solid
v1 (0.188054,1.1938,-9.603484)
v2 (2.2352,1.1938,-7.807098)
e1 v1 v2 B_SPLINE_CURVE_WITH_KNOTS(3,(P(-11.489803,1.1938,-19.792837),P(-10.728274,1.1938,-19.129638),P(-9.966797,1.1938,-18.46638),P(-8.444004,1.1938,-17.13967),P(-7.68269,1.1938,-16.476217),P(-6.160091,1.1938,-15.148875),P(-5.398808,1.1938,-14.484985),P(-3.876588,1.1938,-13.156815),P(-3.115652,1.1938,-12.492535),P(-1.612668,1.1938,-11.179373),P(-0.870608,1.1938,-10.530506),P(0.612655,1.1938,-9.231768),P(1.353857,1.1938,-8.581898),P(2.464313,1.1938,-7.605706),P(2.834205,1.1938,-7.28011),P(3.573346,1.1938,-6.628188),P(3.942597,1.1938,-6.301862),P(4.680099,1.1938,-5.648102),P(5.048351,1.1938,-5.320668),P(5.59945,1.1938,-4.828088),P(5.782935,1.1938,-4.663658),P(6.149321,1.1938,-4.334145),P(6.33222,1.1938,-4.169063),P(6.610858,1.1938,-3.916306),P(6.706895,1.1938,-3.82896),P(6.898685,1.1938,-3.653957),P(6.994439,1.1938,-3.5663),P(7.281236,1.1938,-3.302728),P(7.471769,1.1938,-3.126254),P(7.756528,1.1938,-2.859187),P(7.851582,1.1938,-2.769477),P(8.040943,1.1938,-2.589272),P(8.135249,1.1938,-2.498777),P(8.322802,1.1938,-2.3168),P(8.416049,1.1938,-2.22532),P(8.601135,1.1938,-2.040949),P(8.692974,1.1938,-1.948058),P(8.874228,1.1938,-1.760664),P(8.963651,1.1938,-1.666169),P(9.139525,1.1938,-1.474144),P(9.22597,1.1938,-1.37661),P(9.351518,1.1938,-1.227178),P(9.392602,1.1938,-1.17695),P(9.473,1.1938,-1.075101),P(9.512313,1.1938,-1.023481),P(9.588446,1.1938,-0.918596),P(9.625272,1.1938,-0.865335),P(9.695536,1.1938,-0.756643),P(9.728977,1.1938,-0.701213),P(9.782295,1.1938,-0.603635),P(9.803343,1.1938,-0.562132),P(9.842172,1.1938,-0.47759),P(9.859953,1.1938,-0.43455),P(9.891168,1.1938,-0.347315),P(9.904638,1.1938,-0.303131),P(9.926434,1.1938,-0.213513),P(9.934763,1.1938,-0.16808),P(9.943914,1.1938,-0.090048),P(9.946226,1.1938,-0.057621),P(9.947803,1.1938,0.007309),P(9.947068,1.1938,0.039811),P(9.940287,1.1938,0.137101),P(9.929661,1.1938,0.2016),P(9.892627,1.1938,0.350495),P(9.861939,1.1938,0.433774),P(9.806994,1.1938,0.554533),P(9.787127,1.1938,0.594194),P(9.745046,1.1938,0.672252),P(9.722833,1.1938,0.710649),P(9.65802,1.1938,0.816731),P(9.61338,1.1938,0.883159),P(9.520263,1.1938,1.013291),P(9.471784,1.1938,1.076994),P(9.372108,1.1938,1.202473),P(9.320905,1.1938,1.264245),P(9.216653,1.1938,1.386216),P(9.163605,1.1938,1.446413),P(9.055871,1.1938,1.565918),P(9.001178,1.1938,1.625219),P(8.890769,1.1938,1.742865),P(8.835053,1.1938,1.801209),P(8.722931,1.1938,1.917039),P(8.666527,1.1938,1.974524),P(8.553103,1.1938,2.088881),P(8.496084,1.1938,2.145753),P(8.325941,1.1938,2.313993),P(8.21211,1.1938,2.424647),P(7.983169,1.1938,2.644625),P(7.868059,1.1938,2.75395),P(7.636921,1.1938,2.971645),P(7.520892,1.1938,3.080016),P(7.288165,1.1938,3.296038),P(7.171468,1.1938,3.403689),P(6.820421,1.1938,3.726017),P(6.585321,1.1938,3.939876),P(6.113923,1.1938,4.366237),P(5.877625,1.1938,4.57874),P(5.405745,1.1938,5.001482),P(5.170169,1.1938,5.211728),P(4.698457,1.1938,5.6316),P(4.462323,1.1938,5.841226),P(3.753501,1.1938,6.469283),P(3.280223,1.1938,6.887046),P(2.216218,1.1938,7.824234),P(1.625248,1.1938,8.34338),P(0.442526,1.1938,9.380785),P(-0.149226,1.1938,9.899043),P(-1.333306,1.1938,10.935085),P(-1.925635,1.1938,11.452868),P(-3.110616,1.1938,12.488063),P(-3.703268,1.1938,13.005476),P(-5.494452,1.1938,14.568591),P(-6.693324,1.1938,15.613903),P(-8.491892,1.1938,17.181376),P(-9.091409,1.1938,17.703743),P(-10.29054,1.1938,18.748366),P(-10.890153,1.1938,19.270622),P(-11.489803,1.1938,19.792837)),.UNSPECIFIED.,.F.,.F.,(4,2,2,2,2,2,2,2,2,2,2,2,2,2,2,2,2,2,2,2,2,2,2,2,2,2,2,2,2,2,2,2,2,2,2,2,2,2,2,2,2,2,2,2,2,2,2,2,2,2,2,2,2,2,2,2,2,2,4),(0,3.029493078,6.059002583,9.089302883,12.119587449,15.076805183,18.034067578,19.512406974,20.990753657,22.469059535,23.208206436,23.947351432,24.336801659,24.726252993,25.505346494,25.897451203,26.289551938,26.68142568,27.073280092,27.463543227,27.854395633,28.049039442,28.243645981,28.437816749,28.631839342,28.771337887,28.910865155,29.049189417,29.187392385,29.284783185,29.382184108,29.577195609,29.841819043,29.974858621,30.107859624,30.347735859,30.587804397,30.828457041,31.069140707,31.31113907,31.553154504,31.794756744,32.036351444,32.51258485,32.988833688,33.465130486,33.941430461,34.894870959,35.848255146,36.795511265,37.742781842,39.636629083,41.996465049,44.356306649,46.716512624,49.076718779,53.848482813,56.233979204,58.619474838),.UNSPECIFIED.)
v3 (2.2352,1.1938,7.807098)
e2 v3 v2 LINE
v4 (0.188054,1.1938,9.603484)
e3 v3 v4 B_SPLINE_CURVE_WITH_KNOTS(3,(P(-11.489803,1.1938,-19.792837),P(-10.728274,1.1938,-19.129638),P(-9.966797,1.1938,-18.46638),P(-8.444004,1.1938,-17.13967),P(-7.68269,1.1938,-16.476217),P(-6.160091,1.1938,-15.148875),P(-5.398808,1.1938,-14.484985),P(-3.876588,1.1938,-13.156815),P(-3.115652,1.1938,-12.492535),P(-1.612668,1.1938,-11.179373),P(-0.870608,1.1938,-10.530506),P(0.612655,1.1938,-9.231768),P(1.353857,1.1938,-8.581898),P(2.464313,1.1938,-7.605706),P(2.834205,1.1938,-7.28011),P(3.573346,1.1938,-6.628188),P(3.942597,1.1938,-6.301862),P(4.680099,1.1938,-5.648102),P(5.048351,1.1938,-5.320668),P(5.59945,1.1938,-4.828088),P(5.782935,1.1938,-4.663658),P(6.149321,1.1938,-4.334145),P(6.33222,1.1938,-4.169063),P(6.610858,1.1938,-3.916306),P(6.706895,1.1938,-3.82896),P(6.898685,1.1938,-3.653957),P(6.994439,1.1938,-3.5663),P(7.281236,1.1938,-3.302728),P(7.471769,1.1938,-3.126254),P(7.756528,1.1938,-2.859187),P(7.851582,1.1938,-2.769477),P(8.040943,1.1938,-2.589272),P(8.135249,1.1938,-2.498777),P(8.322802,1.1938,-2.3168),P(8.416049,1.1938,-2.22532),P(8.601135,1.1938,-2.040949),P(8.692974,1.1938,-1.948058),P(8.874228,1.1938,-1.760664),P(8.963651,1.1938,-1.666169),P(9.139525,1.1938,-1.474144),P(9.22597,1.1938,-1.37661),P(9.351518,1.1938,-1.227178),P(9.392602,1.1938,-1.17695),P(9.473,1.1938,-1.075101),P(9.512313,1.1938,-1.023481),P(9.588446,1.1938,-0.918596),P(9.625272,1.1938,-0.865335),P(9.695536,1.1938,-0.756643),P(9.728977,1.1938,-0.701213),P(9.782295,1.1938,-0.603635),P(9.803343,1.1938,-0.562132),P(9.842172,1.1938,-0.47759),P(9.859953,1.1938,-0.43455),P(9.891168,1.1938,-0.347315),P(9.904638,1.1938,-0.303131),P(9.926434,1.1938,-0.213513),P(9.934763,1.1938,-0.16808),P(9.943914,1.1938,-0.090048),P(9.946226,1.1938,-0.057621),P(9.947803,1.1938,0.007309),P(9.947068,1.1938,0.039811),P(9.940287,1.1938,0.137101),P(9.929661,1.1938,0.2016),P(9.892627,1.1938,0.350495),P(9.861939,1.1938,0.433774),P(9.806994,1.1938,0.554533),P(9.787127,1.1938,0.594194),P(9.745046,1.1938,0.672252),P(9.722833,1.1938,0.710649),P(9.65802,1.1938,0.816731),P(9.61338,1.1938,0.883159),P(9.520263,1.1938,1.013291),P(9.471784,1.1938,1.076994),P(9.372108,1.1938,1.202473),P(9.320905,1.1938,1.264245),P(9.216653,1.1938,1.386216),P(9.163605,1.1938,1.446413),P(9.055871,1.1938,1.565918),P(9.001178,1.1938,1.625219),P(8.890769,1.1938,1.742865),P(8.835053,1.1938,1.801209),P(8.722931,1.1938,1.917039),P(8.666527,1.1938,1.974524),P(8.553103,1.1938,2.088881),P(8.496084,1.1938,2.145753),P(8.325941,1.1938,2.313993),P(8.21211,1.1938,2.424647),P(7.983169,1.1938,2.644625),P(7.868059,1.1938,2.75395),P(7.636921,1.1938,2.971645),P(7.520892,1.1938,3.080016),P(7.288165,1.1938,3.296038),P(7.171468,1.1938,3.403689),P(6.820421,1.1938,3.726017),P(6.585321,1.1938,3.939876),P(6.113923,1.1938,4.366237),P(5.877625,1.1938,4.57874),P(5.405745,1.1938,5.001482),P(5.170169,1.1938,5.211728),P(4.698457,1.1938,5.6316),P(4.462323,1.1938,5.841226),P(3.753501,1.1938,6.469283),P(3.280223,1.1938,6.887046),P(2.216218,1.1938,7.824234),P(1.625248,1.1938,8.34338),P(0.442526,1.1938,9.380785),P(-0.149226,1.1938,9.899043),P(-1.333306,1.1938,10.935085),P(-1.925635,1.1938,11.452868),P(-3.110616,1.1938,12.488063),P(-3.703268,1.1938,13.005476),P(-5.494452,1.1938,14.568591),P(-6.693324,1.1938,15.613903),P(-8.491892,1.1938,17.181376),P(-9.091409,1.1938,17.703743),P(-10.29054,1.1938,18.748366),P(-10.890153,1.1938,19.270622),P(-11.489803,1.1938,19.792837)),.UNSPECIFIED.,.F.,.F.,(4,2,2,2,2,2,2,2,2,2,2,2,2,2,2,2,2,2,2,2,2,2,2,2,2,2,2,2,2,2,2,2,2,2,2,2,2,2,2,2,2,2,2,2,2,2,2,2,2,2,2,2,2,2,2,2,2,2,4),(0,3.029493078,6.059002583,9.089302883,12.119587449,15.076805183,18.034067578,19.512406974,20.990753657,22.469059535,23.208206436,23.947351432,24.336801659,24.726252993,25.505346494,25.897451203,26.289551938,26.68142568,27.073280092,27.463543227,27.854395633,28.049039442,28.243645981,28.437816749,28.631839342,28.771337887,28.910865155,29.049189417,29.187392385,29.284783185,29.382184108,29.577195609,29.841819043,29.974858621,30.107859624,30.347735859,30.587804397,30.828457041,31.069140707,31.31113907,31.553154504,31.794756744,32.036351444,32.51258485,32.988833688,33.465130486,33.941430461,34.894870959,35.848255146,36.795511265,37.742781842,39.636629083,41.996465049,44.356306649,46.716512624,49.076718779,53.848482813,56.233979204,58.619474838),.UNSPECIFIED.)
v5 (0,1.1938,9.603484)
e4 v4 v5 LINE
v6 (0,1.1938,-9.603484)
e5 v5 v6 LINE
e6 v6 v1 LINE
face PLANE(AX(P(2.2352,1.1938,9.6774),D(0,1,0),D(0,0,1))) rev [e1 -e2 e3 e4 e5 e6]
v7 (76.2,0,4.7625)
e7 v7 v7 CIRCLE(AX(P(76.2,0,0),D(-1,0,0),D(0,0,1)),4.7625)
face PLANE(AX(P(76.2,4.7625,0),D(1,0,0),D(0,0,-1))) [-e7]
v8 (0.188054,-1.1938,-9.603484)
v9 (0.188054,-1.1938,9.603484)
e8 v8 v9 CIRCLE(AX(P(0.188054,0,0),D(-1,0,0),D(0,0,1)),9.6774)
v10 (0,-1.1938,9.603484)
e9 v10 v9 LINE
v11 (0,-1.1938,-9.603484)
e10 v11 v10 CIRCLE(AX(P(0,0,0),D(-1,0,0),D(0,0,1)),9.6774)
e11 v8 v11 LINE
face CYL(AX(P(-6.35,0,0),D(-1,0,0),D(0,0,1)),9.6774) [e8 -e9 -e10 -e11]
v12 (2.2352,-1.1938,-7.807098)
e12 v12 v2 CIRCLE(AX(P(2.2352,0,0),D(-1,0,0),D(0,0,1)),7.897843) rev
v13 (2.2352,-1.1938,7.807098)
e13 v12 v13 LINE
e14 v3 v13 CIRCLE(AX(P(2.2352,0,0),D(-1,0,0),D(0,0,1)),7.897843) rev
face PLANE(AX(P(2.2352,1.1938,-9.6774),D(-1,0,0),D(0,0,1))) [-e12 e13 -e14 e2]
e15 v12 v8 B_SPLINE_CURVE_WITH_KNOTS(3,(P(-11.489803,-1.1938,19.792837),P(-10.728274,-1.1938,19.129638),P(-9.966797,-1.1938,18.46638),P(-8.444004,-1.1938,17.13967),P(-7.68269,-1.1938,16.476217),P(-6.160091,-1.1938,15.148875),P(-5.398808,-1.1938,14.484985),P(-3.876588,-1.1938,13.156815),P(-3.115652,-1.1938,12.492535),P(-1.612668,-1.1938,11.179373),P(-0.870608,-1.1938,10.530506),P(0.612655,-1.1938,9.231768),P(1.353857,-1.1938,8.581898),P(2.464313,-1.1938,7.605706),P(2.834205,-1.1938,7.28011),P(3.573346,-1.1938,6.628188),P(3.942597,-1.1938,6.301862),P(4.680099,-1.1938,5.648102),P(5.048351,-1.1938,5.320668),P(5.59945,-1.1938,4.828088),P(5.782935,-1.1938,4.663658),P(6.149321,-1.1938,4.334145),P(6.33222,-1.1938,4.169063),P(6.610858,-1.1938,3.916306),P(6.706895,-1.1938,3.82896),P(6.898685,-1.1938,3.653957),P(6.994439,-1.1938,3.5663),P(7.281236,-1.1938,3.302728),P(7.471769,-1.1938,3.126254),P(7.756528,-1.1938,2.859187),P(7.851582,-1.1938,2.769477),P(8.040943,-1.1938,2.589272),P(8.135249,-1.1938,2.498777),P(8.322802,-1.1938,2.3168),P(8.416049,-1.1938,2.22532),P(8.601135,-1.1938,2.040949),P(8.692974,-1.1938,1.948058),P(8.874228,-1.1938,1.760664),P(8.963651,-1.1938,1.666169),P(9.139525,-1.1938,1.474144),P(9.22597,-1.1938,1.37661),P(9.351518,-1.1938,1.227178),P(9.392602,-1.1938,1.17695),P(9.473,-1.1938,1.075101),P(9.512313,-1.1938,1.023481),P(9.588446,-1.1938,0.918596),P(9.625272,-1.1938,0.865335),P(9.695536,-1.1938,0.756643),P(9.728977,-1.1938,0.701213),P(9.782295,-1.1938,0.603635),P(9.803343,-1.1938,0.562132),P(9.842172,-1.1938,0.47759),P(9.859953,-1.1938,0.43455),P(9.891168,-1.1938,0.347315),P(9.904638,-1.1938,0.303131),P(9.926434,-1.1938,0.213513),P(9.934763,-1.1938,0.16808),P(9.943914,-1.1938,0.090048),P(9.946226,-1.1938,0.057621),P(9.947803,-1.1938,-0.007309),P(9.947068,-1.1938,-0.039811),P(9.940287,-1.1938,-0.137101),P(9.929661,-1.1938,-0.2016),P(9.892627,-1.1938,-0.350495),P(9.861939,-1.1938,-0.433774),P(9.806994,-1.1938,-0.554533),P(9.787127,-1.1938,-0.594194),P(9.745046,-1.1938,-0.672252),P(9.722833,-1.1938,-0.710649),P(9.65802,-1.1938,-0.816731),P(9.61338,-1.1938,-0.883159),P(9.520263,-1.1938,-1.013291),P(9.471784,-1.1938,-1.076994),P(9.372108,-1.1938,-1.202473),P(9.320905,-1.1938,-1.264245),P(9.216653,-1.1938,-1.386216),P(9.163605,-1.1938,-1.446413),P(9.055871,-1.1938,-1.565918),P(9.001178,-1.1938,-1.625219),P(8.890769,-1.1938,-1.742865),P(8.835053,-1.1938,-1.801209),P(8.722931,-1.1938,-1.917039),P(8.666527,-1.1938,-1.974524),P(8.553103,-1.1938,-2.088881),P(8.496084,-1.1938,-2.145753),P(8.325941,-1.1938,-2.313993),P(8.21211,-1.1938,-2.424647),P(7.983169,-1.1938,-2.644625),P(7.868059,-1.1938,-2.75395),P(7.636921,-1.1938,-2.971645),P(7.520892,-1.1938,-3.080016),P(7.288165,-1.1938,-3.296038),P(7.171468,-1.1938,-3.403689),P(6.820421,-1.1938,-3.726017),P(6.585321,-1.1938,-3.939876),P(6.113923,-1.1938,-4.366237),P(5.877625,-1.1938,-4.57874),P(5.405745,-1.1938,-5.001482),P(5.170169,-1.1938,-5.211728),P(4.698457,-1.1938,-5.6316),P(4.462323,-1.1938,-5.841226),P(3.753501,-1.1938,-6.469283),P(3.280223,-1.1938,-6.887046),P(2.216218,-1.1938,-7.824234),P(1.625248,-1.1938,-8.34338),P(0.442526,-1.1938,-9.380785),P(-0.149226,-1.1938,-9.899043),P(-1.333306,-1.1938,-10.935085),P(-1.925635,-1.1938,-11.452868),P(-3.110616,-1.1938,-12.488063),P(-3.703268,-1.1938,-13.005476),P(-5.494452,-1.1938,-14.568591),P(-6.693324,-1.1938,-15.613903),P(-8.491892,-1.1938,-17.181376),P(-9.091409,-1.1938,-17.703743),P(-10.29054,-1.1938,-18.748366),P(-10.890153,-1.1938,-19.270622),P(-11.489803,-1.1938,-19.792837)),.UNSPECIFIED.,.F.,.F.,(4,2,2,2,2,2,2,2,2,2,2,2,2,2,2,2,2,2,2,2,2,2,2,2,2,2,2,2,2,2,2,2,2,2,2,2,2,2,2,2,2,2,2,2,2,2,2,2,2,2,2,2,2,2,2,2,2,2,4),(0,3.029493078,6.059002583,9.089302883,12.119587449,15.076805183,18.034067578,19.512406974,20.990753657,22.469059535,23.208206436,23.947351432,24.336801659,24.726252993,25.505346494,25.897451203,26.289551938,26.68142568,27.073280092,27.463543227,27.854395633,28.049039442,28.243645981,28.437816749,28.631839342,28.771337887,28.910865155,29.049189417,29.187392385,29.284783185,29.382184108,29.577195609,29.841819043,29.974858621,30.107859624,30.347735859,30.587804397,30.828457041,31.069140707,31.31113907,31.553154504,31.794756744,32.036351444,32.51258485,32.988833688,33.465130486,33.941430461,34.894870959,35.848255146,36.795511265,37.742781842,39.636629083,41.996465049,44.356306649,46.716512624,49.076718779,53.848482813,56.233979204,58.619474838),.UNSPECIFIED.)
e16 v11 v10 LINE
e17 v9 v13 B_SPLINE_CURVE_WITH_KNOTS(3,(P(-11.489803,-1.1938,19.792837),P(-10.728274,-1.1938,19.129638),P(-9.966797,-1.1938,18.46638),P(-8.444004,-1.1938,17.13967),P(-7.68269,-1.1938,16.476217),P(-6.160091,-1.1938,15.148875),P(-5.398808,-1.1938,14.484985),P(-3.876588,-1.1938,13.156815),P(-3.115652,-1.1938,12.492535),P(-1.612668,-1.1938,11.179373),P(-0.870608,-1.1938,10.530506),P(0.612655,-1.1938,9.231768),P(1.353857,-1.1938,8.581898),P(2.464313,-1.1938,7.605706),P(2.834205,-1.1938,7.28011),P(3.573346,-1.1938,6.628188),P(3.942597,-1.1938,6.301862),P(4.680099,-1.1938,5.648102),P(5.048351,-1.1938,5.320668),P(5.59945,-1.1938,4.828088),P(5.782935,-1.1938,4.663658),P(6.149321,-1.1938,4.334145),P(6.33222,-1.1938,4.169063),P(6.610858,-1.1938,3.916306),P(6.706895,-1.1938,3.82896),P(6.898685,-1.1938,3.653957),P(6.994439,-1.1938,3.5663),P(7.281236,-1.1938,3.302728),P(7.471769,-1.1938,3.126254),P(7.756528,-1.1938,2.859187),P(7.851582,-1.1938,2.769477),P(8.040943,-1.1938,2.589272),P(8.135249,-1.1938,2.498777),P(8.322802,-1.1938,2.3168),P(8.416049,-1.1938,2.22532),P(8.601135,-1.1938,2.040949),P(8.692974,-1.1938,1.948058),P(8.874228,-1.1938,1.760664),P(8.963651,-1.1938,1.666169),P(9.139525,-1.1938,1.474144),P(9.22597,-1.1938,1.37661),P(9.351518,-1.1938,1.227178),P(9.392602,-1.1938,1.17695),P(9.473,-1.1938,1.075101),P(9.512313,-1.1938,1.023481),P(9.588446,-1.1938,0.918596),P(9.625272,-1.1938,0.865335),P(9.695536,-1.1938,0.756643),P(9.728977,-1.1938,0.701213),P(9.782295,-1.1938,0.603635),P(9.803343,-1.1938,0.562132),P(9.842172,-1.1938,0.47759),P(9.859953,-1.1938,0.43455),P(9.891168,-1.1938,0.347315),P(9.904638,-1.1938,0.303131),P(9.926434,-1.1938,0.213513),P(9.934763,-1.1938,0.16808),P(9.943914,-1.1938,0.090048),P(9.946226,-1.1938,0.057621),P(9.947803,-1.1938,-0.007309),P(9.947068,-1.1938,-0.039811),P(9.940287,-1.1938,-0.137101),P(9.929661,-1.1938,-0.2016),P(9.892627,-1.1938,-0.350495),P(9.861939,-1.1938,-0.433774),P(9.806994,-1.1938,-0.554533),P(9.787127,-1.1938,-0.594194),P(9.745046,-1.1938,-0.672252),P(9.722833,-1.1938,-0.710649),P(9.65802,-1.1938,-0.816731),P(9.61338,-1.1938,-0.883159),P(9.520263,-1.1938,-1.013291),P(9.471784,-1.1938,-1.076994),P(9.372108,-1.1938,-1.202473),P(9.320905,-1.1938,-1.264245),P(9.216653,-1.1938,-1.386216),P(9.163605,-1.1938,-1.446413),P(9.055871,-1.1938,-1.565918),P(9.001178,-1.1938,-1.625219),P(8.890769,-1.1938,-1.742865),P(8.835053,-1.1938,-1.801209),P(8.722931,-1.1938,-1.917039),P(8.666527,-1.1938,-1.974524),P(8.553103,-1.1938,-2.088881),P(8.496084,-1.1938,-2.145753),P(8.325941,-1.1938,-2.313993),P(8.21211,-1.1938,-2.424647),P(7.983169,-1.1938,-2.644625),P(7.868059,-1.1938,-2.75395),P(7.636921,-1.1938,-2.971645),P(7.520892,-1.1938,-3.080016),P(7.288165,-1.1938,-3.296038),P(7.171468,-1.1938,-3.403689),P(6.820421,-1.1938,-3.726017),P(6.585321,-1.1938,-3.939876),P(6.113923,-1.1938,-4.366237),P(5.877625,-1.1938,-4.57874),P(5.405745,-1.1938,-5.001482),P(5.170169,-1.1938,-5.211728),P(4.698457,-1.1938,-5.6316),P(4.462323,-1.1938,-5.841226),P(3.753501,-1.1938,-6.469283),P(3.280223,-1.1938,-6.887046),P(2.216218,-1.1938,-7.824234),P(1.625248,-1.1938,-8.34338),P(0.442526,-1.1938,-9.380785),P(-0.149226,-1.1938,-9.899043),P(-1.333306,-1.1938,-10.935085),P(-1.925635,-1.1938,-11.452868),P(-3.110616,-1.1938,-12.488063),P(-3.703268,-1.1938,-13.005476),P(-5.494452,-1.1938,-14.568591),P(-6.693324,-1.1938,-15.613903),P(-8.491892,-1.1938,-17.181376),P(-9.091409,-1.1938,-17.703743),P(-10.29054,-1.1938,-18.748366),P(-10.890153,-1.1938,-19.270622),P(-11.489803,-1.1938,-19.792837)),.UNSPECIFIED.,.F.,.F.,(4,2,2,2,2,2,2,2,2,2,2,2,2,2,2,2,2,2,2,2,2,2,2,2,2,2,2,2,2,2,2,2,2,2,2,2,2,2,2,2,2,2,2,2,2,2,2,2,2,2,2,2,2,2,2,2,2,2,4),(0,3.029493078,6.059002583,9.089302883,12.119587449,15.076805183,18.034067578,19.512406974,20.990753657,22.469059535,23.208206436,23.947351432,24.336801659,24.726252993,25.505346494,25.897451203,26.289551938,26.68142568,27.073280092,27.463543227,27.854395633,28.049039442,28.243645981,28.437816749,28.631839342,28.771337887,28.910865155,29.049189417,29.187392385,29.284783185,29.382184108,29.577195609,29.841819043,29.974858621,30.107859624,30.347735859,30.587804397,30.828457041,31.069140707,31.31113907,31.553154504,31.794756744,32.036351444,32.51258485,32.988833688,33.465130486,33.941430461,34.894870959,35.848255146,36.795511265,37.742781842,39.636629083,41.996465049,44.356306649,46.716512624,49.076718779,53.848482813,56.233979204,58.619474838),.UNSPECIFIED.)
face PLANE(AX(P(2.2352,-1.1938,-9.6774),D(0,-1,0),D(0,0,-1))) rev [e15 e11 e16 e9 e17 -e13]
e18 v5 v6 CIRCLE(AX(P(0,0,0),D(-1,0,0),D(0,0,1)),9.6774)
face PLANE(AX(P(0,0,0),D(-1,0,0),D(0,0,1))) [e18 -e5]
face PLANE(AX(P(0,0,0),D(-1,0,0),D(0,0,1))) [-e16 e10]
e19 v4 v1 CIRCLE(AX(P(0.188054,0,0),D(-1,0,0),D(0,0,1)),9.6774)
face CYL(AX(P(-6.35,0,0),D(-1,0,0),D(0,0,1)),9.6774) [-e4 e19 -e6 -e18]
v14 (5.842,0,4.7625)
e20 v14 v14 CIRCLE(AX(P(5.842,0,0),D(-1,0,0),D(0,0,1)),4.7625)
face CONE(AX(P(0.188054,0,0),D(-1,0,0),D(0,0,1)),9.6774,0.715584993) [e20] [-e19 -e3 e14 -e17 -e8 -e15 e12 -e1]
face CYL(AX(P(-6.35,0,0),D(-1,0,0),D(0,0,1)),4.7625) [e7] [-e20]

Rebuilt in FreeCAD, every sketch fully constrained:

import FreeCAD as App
import Part
import Sketcher
from FreeCAD import Vector
Q = App.Units.Quantity


def add_polygon(sketch, points):
    """Adds a closed chain of lines whose ends are joined by coincident constraints."""
    first, n = sketch.GeometryCount, len(points)
    for a, b in zip(points, points[1:] + points[:1]):
        sketch.addGeometry(Part.LineSegment(App.Vector(*a, 0), App.Vector(*b, 0)), False)
    for i in range(n):
        sketch.addConstraint(Sketcher.Constraint("Coincident", first + i, 2, first + (i + 1) % n, 1))

doc = App.newDocument("Part")
body = doc.addObject("PartDesign::Body", "Body")

# Sketch on XY plane
sketch1 = body.newObject("Sketcher::SketchObject", "Sketch")
sketch1.AttachmentSupport = (doc.getObject("XY_Plane"), [""])
sketch1.MapMode = "FlatFace"
add_polygon(sketch1, [(0, 9.6774), (0, 0), (76.2, 0), (76.2, 4.7625), (5.842, 4.7625), (0.188054, 9.6774)])  # lines 0-5
sketch1.addConstraint([
    Sketcher.Constraint("Vertical", 0),
    Sketcher.Constraint("Horizontal", 1),
    Sketcher.Constraint("Vertical", 2),
    Sketcher.Constraint("Horizontal", 3),
    Sketcher.Constraint("Horizontal", 5),
    Sketcher.Constraint("Coincident", 0, 2, -1, 1),
    Sketcher.Constraint("DistanceX", 1, 1, 1, 2, Q("3 in")),
    Sketcher.Constraint("Angle", 4, Q("139 deg")),
    Sketcher.Constraint("DistanceX", 3, 2, 3, 1, Q("2.77 in")),
    Sketcher.Constraint("DistanceY", 0, 2, 0, 1, Q("0.381 in")),
    Sketcher.Constraint("DistanceY", 2, 1, 2, 2, Q("0.1875 in")),
])
revolution = body.newObject("PartDesign::Revolution", "Revolution")
revolution.Profile = sketch1
revolution.ReferenceAxis = (sketch1, ["H_Axis"])
revolution.Angle = 360

# Sketch on YZ plane
sketch2 = body.newObject("Sketcher::SketchObject", "Sketch001")
sketch2.AttachmentSupport = (doc.getObject("YZ_Plane"), [""])
sketch2.MapMode = "FlatFace"
add_polygon(sketch2, [(1.1938, -9.6774), (-1.1938, -9.6774), (-1.1938, 9.6774), (1.1938, 9.6774)])  # lines 0-3
sketch2.addConstraint([
    Sketcher.Constraint("Horizontal", 0),
    Sketcher.Constraint("Vertical", 1),
    Sketcher.Constraint("Horizontal", 2),
    Sketcher.Constraint("Vertical", 3),
    Sketcher.Constraint("Symmetric", 0, 2, 2, 2, -1, 1),
    Sketcher.Constraint("DistanceX", 0, 2, 0, 1, Q("0.094 in")),
    Sketcher.Constraint("DistanceY", 1, 1, 1, 2, Q("0.762 in")),
])
pocket1 = body.newObject("PartDesign::Pocket", "Pocket")
pocket1.Profile = sketch2
pocket1.Length = Q("0.088 in")
pocket1.Reversed = True

doc.recompute()
